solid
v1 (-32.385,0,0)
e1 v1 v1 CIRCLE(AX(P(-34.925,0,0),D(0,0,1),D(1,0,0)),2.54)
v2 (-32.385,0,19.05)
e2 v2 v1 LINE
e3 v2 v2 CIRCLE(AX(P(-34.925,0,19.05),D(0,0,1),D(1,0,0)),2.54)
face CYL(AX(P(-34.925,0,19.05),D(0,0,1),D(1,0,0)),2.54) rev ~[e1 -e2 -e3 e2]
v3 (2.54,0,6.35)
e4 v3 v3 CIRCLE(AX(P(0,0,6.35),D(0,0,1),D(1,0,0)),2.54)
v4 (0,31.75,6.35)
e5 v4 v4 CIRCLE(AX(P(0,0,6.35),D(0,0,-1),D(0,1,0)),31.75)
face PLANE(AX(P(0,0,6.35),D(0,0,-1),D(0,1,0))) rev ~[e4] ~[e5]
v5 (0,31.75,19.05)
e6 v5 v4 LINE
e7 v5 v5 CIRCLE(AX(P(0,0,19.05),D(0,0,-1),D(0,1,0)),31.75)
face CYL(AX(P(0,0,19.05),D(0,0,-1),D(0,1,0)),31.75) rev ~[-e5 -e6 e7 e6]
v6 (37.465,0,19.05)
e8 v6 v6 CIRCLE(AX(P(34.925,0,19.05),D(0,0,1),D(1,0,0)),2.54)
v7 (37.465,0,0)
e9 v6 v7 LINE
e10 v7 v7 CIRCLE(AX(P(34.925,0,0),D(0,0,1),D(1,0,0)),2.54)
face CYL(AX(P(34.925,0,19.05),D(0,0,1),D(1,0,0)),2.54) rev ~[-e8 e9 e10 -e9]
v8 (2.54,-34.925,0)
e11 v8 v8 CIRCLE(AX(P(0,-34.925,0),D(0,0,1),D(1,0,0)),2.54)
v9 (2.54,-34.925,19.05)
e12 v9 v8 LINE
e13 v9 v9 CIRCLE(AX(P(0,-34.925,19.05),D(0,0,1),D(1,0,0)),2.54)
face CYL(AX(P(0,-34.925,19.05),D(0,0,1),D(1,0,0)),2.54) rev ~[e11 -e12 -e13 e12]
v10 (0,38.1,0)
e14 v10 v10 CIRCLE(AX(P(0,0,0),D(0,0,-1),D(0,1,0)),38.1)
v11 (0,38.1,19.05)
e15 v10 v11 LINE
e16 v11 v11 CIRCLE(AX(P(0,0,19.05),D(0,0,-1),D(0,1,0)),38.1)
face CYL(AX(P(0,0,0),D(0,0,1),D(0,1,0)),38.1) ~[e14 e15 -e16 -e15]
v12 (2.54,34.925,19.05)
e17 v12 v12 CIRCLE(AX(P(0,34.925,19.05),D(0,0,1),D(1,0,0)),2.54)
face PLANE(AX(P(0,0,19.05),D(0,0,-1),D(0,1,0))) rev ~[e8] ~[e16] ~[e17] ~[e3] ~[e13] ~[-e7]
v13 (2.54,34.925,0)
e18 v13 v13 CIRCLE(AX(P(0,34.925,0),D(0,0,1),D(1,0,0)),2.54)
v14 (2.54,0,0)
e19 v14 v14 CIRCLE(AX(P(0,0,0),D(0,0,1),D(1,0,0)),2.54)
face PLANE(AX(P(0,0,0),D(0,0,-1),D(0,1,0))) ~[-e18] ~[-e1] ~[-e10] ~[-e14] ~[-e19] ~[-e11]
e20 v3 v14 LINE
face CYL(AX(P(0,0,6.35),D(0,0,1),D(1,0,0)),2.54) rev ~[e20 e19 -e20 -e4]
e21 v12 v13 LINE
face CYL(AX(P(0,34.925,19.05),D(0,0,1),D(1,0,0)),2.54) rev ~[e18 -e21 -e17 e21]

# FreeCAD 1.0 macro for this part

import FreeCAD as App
import Part
import Sketcher
from FreeCAD import Vector
Q = App.Units.Quantity

doc = App.newDocument("Part")
params = doc.addObject("Spreadsheet::Sheet", "Params")
for row, (alias, value) in enumerate([
    ("sketch1_width", "1.5 in"),
    ("sketch1_height", "0.5 in"),
    ("sketch1_width2", "0.25 in"),
    ("revolution_angle", "360 deg"),
    ("sketch2_diameter", "0.2 in"),
    ("pocket1_length", "1 in"),
    ("sketch3_diameter", "0.2 in"),
    ("pocket2_length", "1 in"),
], start=1):
    params.set(f"A{row}", alias)
    params.set(f"B{row}", "=" + value)
    params.setAlias(f"B{row}", alias)

body = doc.addObject("PartDesign::Body", "Body")

sketch1 = body.newObject("Sketcher::SketchObject", "Sketch")
sketch1.AttachmentSupport = (doc.getObject("YZ_Plane"), [""])
sketch1.MapMode = "FlatFace"
sketch1.addGeometry([
    Part.LineSegment(Vector(0, 6, 0), Vector(0, 0, 0)),
    Part.LineSegment(Vector(0, 0, 0), Vector(38, 0, 0)),
    Part.LineSegment(Vector(38, 0, 0), Vector(38, 19, 0)),
    Part.LineSegment(Vector(38, 19, 0), Vector(32, 19, 0)),
    Part.LineSegment(Vector(32, 19, 0), Vector(32, 6, 0)),
    Part.LineSegment(Vector(32, 6, 0), Vector(0, 6, 0)),
], False)
sketch1.addConstraint([
    Sketcher.Constraint("Coincident", 0, 2, 1, 1),
    Sketcher.Constraint("Coincident", 1, 2, 2, 1),
    Sketcher.Constraint("Coincident", 2, 2, 3, 1),
    Sketcher.Constraint("Coincident", 3, 2, 4, 1),
    Sketcher.Constraint("Coincident", 4, 2, 5, 1),
    Sketcher.Constraint("Coincident", 5, 2, 0, 1),
    Sketcher.Constraint("Vertical", 0),
    Sketcher.Constraint("Horizontal", 1),
    Sketcher.Constraint("Vertical", 2),
    Sketcher.Constraint("Horizontal", 3),
    Sketcher.Constraint("Vertical", 4),
    Sketcher.Constraint("Horizontal", 5),
    Sketcher.Constraint("Coincident", 0, 2, -1, 1),
    Sketcher.Constraint("Equal", 3, 0),
    Sketcher.Constraint("DistanceX", 1, 1, 1, 2, Q("1.5 in")),
    Sketcher.Constraint("DistanceY", 4, 2, 4, 1, Q("0.5 in")),
    Sketcher.Constraint("DistanceX", 3, 2, 3, 1, Q("0.25 in")),
])
sketch1.setExpression("Constraints[14]", "Params.sketch1_width")
sketch1.setExpression("Constraints[15]", "Params.sketch1_height")
sketch1.setExpression("Constraints[16]", "Params.sketch1_width2")
revolution = body.newObject("PartDesign::Revolution", "Revolution")
revolution.Profile = sketch1
revolution.ReferenceAxis = (sketch1, ["V_Axis"])
revolution.setExpression("Angle", "Params.revolution_angle")

sketch2 = body.newObject("Sketcher::SketchObject", "Sketch001")
sketch2.AttachmentSupport = (doc.getObject("XY_Plane"), [""])
sketch2.MapMode = "FlatFace"
sketch2.AttachmentOffset = App.Placement(Vector(0, 0, 0.25 * 25.4), App.Rotation())
sketch2.addGeometry(Part.Circle(Vector(0, 0, 0), Vector(0, 0, 1), 2.5), False)
sketch2.addConstraint([
    Sketcher.Constraint("Coincident", 0, 3, -1, 1),
    Sketcher.Constraint("Diameter", 0, Q("0.2 in")),
])
sketch2.setExpression("Constraints[1]", "Params.sketch2_diameter")
pocket1 = body.newObject("PartDesign::Pocket", "Pocket")
pocket1.Profile = sketch2
pocket1.setExpression("Length", "Params.pocket1_length")

sketch3 = body.newObject("Sketcher::SketchObject", "Sketch002")
sketch3.AttachmentSupport = (doc.getObject("XY_Plane"), [""])
sketch3.MapMode = "FlatFace"
sketch3.AttachmentOffset = App.Placement(Vector(0, 0, 0.75 * 25.4), App.Rotation())
sketch3.addGeometry([
    Part.Circle(Vector(0, 34.9, 0), Vector(0, 0, 1), 2.5),
    Part.Circle(Vector(34.9, 0, 0), Vector(0, 0, 1), 2.5),
    Part.Circle(Vector(-34.9, 0, 0), Vector(0, 0, 1), 2.5),
    Part.Circle(Vector(0, -34.9, 0), Vector(0, 0, 1), 2.5),
], False)
sketch3.addConstraint([
    Sketcher.Constraint("Equal", 0, 1),
    Sketcher.Constraint("Equal", 1, 2),
    Sketcher.Constraint("Equal", 2, 3),
    Sketcher.Constraint("Symmetric", 1, 3, 2, 3, -1, 1),
    Sketcher.Constraint("Symmetric", 0, 3, 3, 3, -1, 1),
    Sketcher.Constraint("PointOnObject", 0, 3, -2),
    Sketcher.Constraint("PointOnObject", 1, 3, -1),
    Sketcher.Constraint("Diameter", 0, Q("0.2 in")),
    Sketcher.Constraint("DistanceX", 2, 3, 1, 3, Q("2.75 in")),
    Sketcher.Constraint("DistanceY", 3, 3, 0, 3, Q("2.75 in")),
])
sketch3.setExpression("Constraints[7]", "Params.sketch3_diameter")
pocket2 = body.newObject("PartDesign::Pocket", "Pocket001")
pocket2.Profile = sketch3
pocket2.setExpression("Length", "Params.pocket2_length")

doc.recompute()
